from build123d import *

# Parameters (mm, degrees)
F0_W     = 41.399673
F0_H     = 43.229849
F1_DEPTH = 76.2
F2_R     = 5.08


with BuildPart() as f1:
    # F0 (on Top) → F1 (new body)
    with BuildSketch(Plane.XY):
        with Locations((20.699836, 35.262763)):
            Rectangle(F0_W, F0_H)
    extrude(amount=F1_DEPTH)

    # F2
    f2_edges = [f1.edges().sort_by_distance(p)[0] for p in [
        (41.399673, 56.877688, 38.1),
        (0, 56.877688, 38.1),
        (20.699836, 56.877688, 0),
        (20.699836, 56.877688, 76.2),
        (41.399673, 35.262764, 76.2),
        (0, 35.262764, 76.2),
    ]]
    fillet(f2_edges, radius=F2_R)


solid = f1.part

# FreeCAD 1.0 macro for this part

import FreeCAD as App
import Part
import Sketcher

V = App.Vector


def edges_at(feature, points):
    """Names of the edges that pass closest to the given points."""
    edges = feature.Shape.Edges
    near = lambda p: min(range(len(edges)), key=lambda i: edges[i].distToShape(Part.Vertex(*p))[0])
    return sorted({f"Edge{near(p) + 1}" for p in points})

doc = App.newDocument("Part")
params = doc.addObject("Spreadsheet::Sheet", "Params")
for row, (alias, value) in enumerate([
    ("pad1_length", "3 in"),
    ("fillet_radius", "0.2 in"),
], start=1):
    params.set(f"A{row}", alias)
    params.set(f"B{row}", "=" + value)
    params.setAlias(f"B{row}", alias)

body = doc.addObject("PartDesign::Body", "Body")

# Sketch on XY plane
sketch1 = body.newObject("Sketcher::SketchObject", "Sketch")
sketch1.AttachmentSupport = (doc.getObject("XY_Plane"), [""])
sketch1.MapMode = "FlatFace"
sketch1.addGeometry([
    Part.LineSegment(V(0, 56.877688, 0), V(0, 13.647839, 0)),
    Part.LineSegment(V(0, 13.647839, 0), V(41.399673, 13.647839, 0)),
    Part.LineSegment(V(41.399673, 13.647839, 0), V(41.399673, 56.877688, 0)),
    Part.LineSegment(V(41.399673, 56.877688, 0), V(0, 56.877688, 0)),
], False)
sketch1.addConstraint([
    Sketcher.Constraint("Coincident", 0, 2, 1, 1),
    Sketcher.Constraint("Coincident", 1, 2, 2, 1),
    Sketcher.Constraint("Coincident", 2, 2, 3, 1),
    Sketcher.Constraint("Coincident", 3, 2, 0, 1),
    Sketcher.Constraint("Vertical", 0),
    Sketcher.Constraint("Horizontal", 1),
    Sketcher.Constraint("Vertical", 2),
    Sketcher.Constraint("Horizontal", 3),
    Sketcher.Constraint("PointOnObject", 0, 2, -2),
    Sketcher.Constraint("DistanceY", 0, 2, 0, 1, 43.229849),
    Sketcher.Constraint("DistanceX", 1, 1, 1, 2, 41.399673),
    Sketcher.Constraint("DistanceY", -1, 1, 0, 2, 13.647839),
])
pad1 = body.newObject("PartDesign::Pad", "Pad")
pad1.Profile = sketch1
pad1.setExpression("Length", "Params.pad1_length")
doc.recompute()

fillet = body.newObject("PartDesign::Fillet", "Fillet")
fillet.Base = (pad1, edges_at(pad1, [
    (41.4, 56.878, 38.1),
    (0, 56.878, 38.1),
    (20.7, 56.878, 0),
    (20.7, 56.878, 76.2),
    (41.4, 35.263, 76.2),
    (0, 35.263, 76.2),
]))
fillet.setExpression("Radius", "Params.fillet_radius")

doc.recompute()
